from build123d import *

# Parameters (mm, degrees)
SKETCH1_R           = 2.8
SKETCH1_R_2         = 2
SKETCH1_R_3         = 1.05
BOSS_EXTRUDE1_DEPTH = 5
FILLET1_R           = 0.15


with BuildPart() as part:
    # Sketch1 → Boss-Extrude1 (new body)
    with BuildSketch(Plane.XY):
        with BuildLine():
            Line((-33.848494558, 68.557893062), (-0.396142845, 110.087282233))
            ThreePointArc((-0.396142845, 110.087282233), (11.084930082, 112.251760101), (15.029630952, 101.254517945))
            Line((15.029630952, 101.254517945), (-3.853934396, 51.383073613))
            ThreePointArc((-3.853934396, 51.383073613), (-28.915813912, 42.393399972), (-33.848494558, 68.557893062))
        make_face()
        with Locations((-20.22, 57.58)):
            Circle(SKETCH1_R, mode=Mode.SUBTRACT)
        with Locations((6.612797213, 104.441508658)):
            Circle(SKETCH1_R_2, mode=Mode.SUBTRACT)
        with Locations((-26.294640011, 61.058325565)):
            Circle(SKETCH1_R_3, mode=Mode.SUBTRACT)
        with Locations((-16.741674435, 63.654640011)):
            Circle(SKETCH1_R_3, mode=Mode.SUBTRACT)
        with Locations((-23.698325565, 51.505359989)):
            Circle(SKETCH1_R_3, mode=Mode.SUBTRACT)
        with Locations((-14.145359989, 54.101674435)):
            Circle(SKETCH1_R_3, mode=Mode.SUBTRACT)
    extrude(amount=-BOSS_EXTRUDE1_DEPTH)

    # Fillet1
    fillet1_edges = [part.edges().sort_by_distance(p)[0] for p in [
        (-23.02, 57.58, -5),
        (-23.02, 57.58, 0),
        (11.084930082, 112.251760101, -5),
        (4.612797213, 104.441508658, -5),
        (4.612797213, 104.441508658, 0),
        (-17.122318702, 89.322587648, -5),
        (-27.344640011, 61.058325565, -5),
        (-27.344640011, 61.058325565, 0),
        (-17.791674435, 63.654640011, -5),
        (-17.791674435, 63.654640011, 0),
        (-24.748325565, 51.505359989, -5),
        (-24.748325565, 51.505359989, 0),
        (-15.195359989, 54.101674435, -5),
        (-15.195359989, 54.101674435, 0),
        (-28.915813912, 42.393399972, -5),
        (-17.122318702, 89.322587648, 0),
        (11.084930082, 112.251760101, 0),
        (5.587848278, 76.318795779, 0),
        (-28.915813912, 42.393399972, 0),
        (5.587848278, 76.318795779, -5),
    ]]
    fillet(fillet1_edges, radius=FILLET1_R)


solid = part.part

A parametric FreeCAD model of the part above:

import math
import FreeCAD as App
import Part
import Sketcher

V = App.Vector


def edges_at(feature, points):
    """Names of the edges that pass closest to the given points."""
    edges = feature.Shape.Edges
    near = lambda p: min(range(len(edges)), key=lambda i: edges[i].distToShape(Part.Vertex(*p))[0])
    return sorted({f"Edge{near(p) + 1}" for p in points})

doc = App.newDocument("Part")
body = doc.addObject("PartDesign::Body", "Body")

sketch1 = doc.addObject("Sketcher::SketchObject", "Sketch")
body.addObject(sketch1)
sketch1.AttachmentSupport = (doc.XY_Plane, [""])
sketch1.MapMode = "FlatFace"
sketch1.addGeometry([
    Part.LineSegment(V(-0.396143, 110.087282, 0), V(-33.848495, 68.557893, 0)),
    Part.ArcOfCircle(Part.Circle(V(-20.22, 57.58, 0), V(0, 0, 1), 17.5), math.radians(141.148197), math.radians(339.261087)),
    Part.LineSegment(V(-3.853934, 51.383074, 0), V(15.029631, 101.254518, 0)),
    Part.ArcOfCircle(Part.Circle(V(6.612797, 104.441509, 0), V(0, 0, 1), 9), math.radians(-20.738913), math.radians(141.148197)),
    Part.Circle(V(-14.14536, 54.101674, 0), V(0, 0, 1), 1.05),
    Part.Circle(V(-16.741674, 63.65464, 0), V(0, 0, 1), 1.05),
    Part.Circle(V(-23.698326, 51.50536, 0), V(0, 0, 1), 1.05),
    Part.Circle(V(-20.22, 57.58, 0), V(0, 0, 1), 2.8),
    Part.Circle(V(-26.29464, 61.058326, 0), V(0, 0, 1), 1.05),
    Part.Circle(V(6.612797, 104.441509, 0), V(0, 0, 1), 2),
], False)
sketch1.addConstraint([
    Sketcher.Constraint("Tangent", 0, 2, 1, 1),
    Sketcher.Constraint("Tangent", 1, 2, 2, 1),
    Sketcher.Constraint("Tangent", 2, 2, 3, 1),
    Sketcher.Constraint("Tangent", 3, 2, 0, 1),
    Sketcher.Constraint("Coincident", 7, 3, 1, 3),
    Sketcher.Constraint("Coincident", 9, 3, 3, 3),
    Sketcher.Constraint("Equal", 4, 5),
    Sketcher.Constraint("Equal", 5, 6),
    Sketcher.Constraint("Equal", 6, 8),
    Sketcher.Constraint("Diameter", 9, 4.0),
    Sketcher.Constraint("Radius", 3, 9.0),
    Sketcher.Constraint("Diameter", 4, 2.1),
    Sketcher.Constraint("Diameter", 7, 5.6),
    Sketcher.Constraint("Radius", 1, 17.5),
    Sketcher.Constraint("DistanceX", 1, 3, -1, 1, 20.22),
    Sketcher.Constraint("DistanceY", -1, 1, 1, 3, 57.58),
    Sketcher.Constraint("DistanceY", 1, 2, 4, 3, 2.718601),
    Sketcher.Constraint("DistanceY", -1, 1, 3, 3, 104.441509),
    Sketcher.Constraint("DistanceX", 4, 3, -1, 1, 14.14536),
    Sketcher.Constraint("DistanceY", -1, 1, 5, 3, 63.65464),
    Sketcher.Constraint("DistanceY", -1, 1, 6, 3, 51.50536),
    Sketcher.Constraint("DistanceX", 8, 3, -1, 1, 26.29464),
    Sketcher.Constraint("DistanceX", -1, 1, 2, 2, 15.029631),
    Sketcher.Constraint("DistanceX", 5, 3, 3, 3, 23.354472),
    Sketcher.Constraint("DistanceX", 6, 3, 5, 3, 6.956651),
    Sketcher.Constraint("DistanceY", 4, 3, 8, 3, 6.956651),
])
pad1 = doc.addObject("PartDesign::Pad", "Pad")
body.addObject(pad1)
pad1.Profile = sketch1
pad1.Length = 5
pad1.Reversed = True
doc.recompute()

fillet = doc.addObject("PartDesign::Fillet", "Fillet")
body.addObject(fillet)
fillet.Base = (pad1, edges_at(pad1, [
    (-23.02, 57.58, -5),
    (-23.02, 57.58, 0),
    (11.085, 112.252, -5),
    (4.613, 104.442, -5),
    (4.613, 104.442, 0),
    (-17.122, 89.323, -5),
    (-27.345, 61.058, -5),
    (-27.345, 61.058, 0),
    (-17.792, 63.655, -5),
    (-17.792, 63.655, 0),
    (-24.748, 51.505, -5),
    (-24.748, 51.505, 0),
    (-15.195, 54.102, -5),
    (-15.195, 54.102, 0),
    (-28.916, 42.393, -5),
    (-17.122, 89.323, 0),
    (11.085, 112.252, 0),
    (5.588, 76.319, 0),
    (-28.916, 42.393, 0),
    (5.588, 76.319, -5),
]))
fillet.Radius = 0.15

doc.recompute()
